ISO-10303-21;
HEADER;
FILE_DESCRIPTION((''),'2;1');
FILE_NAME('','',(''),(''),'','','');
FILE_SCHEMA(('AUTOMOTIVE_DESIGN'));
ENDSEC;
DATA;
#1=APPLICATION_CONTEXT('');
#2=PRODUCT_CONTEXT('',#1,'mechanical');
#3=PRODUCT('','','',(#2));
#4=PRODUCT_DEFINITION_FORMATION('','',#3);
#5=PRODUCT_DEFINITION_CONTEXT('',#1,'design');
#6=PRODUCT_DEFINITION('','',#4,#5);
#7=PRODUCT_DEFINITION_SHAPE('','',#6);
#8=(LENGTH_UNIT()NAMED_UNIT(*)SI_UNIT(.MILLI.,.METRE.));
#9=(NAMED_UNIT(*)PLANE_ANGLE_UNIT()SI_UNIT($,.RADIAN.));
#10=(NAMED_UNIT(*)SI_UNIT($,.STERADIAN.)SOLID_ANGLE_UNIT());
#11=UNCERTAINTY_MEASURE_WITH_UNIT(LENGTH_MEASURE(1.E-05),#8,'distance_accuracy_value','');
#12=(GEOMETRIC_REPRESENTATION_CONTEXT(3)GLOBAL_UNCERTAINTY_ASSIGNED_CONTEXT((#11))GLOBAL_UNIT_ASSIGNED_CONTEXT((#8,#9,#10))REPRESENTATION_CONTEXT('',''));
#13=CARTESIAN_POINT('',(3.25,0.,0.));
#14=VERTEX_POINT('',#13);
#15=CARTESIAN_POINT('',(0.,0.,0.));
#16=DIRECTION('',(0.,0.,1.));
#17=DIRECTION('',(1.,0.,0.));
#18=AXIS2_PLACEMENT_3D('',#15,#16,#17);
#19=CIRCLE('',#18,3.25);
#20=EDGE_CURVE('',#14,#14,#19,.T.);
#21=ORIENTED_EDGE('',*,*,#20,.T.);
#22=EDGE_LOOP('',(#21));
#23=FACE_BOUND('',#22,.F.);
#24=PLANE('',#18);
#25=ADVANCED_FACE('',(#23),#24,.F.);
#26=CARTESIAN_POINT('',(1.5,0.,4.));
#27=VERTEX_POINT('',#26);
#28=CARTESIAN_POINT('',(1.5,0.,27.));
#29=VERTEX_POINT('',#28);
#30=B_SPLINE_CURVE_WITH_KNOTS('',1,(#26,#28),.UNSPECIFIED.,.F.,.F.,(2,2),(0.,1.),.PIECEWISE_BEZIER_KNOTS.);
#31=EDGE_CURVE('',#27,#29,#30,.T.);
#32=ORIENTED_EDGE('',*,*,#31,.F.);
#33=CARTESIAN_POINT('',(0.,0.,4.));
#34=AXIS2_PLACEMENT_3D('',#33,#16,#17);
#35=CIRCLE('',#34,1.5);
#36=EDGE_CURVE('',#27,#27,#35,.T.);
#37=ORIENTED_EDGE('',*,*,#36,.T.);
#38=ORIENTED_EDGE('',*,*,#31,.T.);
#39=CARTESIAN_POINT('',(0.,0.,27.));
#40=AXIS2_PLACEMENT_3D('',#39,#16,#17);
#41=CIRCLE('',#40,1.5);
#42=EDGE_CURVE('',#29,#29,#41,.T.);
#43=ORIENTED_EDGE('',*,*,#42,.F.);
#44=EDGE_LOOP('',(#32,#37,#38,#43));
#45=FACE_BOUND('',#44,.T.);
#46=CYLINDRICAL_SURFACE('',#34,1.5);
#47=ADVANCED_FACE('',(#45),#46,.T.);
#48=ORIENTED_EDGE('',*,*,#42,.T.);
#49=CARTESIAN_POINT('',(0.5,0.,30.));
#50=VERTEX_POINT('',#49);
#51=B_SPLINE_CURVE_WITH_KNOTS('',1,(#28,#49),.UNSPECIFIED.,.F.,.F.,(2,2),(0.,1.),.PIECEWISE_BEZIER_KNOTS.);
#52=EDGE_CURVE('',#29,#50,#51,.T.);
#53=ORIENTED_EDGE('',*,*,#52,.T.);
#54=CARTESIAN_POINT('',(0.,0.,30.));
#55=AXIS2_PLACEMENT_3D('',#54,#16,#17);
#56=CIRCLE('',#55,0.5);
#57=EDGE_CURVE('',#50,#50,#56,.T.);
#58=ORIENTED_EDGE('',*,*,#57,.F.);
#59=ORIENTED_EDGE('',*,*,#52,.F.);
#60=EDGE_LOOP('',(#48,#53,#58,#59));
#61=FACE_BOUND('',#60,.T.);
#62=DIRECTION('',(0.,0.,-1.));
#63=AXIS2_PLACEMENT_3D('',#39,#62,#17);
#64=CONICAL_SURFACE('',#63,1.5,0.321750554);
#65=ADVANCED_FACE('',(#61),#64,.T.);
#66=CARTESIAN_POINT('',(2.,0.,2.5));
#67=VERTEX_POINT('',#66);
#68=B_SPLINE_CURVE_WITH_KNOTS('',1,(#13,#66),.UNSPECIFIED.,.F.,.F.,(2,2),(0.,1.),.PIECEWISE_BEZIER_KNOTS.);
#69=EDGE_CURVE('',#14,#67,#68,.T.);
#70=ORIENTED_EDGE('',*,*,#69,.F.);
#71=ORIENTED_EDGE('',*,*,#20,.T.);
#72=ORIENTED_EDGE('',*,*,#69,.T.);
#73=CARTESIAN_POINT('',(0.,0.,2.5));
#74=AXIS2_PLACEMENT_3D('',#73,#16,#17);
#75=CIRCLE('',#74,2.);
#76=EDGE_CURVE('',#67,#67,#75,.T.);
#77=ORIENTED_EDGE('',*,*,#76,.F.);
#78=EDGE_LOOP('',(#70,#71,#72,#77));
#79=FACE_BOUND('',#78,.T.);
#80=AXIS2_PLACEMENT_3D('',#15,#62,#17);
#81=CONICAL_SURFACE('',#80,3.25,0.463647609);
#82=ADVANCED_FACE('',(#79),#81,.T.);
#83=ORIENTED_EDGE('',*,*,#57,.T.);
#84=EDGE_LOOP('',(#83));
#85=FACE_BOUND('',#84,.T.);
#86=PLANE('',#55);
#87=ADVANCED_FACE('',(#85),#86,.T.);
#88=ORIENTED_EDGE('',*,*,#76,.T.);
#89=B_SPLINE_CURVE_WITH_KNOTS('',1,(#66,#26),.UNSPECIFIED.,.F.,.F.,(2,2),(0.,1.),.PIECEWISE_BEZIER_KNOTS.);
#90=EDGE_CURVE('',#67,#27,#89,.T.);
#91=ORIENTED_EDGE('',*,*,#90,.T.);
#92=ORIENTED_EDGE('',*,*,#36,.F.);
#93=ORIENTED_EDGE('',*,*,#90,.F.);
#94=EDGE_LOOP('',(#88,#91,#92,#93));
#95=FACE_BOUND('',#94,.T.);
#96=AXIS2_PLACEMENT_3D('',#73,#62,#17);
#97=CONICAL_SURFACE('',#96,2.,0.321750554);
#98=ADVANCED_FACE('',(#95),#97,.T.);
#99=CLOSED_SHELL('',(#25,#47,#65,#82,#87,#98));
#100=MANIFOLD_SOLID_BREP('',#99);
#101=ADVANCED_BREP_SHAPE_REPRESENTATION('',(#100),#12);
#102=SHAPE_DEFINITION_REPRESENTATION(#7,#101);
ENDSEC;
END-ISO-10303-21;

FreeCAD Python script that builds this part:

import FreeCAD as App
import Part
import Sketcher

V = App.Vector

doc = App.newDocument("Part")
params = doc.addObject("Spreadsheet::Sheet", "Params")
for row, (alias, value) in enumerate([
    ("sketch1_diameter", "4 mm"),
    ("sketch2_diameter", "3 mm"),
    ("sketch3_diameter", "3 mm"),
    ("sketch4_diameter", "3 mm"),
    ("sketch5_diameter", "3 mm"),
    ("sketch6_diameter", "1 mm"),
    ("sketch7_diameter", "6.5 mm"),
    ("sketch8_diameter", "4 mm"),
], start=1):
    params.set(f"A{row}", alias)
    params.set(f"B{row}", "=" + value)
    params.setAlias(f"B{row}", alias)

body = doc.addObject("PartDesign::Body", "Body")

# Sketch on XY plane
sketch1 = doc.addObject("Sketcher::SketchObject", "Sketch")
body.addObject(sketch1)
sketch1.AttachmentSupport = (doc.XY_Plane, [""])
sketch1.MapMode = "FlatFace"
sketch1.AttachmentOffset = App.Placement(V(0, 0, 2.5), App.Rotation())
sketch1.addGeometry(Part.Circle(V(0, 0, 0), V(0, 0, 1), 2), False)
sketch1.addConstraint(Sketcher.Constraint("Coincident", 0, 3, -1, 1))
sketch1.addConstraint(Sketcher.Constraint("Diameter", 0, 4.0))
sketch1.setExpression("Constraints[1]", "Params.sketch1_diameter")

# Sketch on XY plane
sketch2 = doc.addObject("Sketcher::SketchObject", "Sketch001")
body.addObject(sketch2)
sketch2.AttachmentSupport = (doc.XY_Plane, [""])
sketch2.MapMode = "FlatFace"
sketch2.AttachmentOffset = App.Placement(V(0, 0, 4), App.Rotation())
sketch2.addGeometry(Part.Circle(V(0, 0, 0), V(0, 0, 1), 1.5), False)
sketch2.addConstraint(Sketcher.Constraint("Coincident", 0, 3, -1, 1))
sketch2.addConstraint(Sketcher.Constraint("Diameter", 0, 3.0))
sketch2.setExpression("Constraints[1]", "Params.sketch2_diameter")

additiveloft = doc.addObject("PartDesign::AdditiveLoft", "AdditiveLoft")
body.addObject(additiveloft)
additiveloft.Profile = sketch1
additiveloft.Sections = [sketch2]
body2 = doc.addObject("PartDesign::Body", "Body001")

# Sketch on XY plane
sketch3 = doc.addObject("Sketcher::SketchObject", "Sketch002")
body2.addObject(sketch3)
sketch3.AttachmentSupport = (doc.getObject("XY_Plane001"), [""])
sketch3.MapMode = "FlatFace"
sketch3.AttachmentOffset = App.Placement(V(0, 0, 4), App.Rotation())
sketch3.addGeometry(Part.Circle(V(0, 0, 0), V(0, 0, 1), 1.5), False)
sketch3.addConstraint(Sketcher.Constraint("Coincident", 0, 3, -1, 1))
sketch3.addConstraint(Sketcher.Constraint("Diameter", 0, 3.0))
sketch3.setExpression("Constraints[1]", "Params.sketch3_diameter")

# Sketch on XY plane
sketch4 = doc.addObject("Sketcher::SketchObject", "Sketch003")
body2.addObject(sketch4)
sketch4.AttachmentSupport = (doc.getObject("XY_Plane001"), [""])
sketch4.MapMode = "FlatFace"
sketch4.AttachmentOffset = App.Placement(V(0, 0, 27), App.Rotation())
sketch4.addGeometry(Part.Circle(V(0, 0, 0), V(0, 0, 1), 1.5), False)
sketch4.addConstraint(Sketcher.Constraint("Coincident", 0, 3, -1, 1))
sketch4.addConstraint(Sketcher.Constraint("Diameter", 0, 3.0))
sketch4.setExpression("Constraints[1]", "Params.sketch4_diameter")

additiveloft2 = doc.addObject("PartDesign::AdditiveLoft", "AdditiveLoft001")
body2.addObject(additiveloft2)
additiveloft2.Profile = sketch3
additiveloft2.Sections = [sketch4]
body3 = doc.addObject("PartDesign::Body", "Body002")

# Sketch on XY plane
sketch5 = doc.addObject("Sketcher::SketchObject", "Sketch004")
body3.addObject(sketch5)
sketch5.AttachmentSupport = (doc.getObject("XY_Plane002"), [""])
sketch5.MapMode = "FlatFace"
sketch5.AttachmentOffset = App.Placement(V(0, 0, 27), App.Rotation())
sketch5.addGeometry(Part.Circle(V(0, 0, 0), V(0, 0, 1), 1.5), False)
sketch5.addConstraint(Sketcher.Constraint("Coincident", 0, 3, -1, 1))
sketch5.addConstraint(Sketcher.Constraint("Diameter", 0, 3.0))
sketch5.setExpression("Constraints[1]", "Params.sketch5_diameter")

# Sketch on XY plane
sketch6 = doc.addObject("Sketcher::SketchObject", "Sketch005")
body3.addObject(sketch6)
sketch6.AttachmentSupport = (doc.getObject("XY_Plane002"), [""])
sketch6.MapMode = "FlatFace"
sketch6.AttachmentOffset = App.Placement(V(0, 0, 30), App.Rotation())
sketch6.addGeometry(Part.Circle(V(0, 0, 0), V(0, 0, 1), 0.5), False)
sketch6.addConstraint(Sketcher.Constraint("Coincident", 0, 3, -1, 1))
sketch6.addConstraint(Sketcher.Constraint("Diameter", 0, 1.0))
sketch6.setExpression("Constraints[1]", "Params.sketch6_diameter")

additiveloft3 = doc.addObject("PartDesign::AdditiveLoft", "AdditiveLoft002")
body3.addObject(additiveloft3)
additiveloft3.Profile = sketch5
additiveloft3.Sections = [sketch6]
body4 = doc.addObject("PartDesign::Body", "Body003")

# Sketch on XY plane
sketch7 = doc.addObject("Sketcher::SketchObject", "Sketch006")
body4.addObject(sketch7)
sketch7.AttachmentSupport = (doc.getObject("XY_Plane003"), [""])
sketch7.MapMode = "FlatFace"
sketch7.addGeometry(Part.Circle(V(0, 0, 0), V(0, 0, 1), 3.25), False)
sketch7.addConstraint(Sketcher.Constraint("Coincident", 0, 3, -1, 1))
sketch7.addConstraint(Sketcher.Constraint("Diameter", 0, 6.5))
sketch7.setExpression("Constraints[1]", "Params.sketch7_diameter")

# Sketch on XY plane
sketch8 = doc.addObject("Sketcher::SketchObject", "Sketch007")
body4.addObject(sketch8)
sketch8.AttachmentSupport = (doc.getObject("XY_Plane003"), [""])
sketch8.MapMode = "FlatFace"
sketch8.AttachmentOffset = App.Placement(V(0, 0, 2.5), App.Rotation())
sketch8.addGeometry(Part.Circle(V(0, 0, 0), V(0, 0, 1), 2), False)
sketch8.addConstraint(Sketcher.Constraint("Coincident", 0, 3, -1, 1))
sketch8.addConstraint(Sketcher.Constraint("Diameter", 0, 4.0))
sketch8.setExpression("Constraints[1]", "Params.sketch8_diameter")

additiveloft4 = doc.addObject("PartDesign::AdditiveLoft", "AdditiveLoft003")
body4.addObject(additiveloft4)
additiveloft4.Profile = sketch7
additiveloft4.Sections = [sketch8]
doc.recompute()

boolean = doc.addObject("PartDesign::Boolean", "Boolean")
body4.addObject(boolean)
boolean.Type = "Fuse"
boolean.addObjects([body])
doc.recompute()

boolean2 = doc.addObject("PartDesign::Boolean", "Boolean001")
body4.addObject(boolean2)
boolean2.Type = "Fuse"
boolean2.addObjects([body2])
doc.recompute()

boolean3 = doc.addObject("PartDesign::Boolean", "Boolean002")
body4.addObject(boolean3)
boolean3.Type = "Fuse"
boolean3.addObjects([body3])

doc.recompute()
